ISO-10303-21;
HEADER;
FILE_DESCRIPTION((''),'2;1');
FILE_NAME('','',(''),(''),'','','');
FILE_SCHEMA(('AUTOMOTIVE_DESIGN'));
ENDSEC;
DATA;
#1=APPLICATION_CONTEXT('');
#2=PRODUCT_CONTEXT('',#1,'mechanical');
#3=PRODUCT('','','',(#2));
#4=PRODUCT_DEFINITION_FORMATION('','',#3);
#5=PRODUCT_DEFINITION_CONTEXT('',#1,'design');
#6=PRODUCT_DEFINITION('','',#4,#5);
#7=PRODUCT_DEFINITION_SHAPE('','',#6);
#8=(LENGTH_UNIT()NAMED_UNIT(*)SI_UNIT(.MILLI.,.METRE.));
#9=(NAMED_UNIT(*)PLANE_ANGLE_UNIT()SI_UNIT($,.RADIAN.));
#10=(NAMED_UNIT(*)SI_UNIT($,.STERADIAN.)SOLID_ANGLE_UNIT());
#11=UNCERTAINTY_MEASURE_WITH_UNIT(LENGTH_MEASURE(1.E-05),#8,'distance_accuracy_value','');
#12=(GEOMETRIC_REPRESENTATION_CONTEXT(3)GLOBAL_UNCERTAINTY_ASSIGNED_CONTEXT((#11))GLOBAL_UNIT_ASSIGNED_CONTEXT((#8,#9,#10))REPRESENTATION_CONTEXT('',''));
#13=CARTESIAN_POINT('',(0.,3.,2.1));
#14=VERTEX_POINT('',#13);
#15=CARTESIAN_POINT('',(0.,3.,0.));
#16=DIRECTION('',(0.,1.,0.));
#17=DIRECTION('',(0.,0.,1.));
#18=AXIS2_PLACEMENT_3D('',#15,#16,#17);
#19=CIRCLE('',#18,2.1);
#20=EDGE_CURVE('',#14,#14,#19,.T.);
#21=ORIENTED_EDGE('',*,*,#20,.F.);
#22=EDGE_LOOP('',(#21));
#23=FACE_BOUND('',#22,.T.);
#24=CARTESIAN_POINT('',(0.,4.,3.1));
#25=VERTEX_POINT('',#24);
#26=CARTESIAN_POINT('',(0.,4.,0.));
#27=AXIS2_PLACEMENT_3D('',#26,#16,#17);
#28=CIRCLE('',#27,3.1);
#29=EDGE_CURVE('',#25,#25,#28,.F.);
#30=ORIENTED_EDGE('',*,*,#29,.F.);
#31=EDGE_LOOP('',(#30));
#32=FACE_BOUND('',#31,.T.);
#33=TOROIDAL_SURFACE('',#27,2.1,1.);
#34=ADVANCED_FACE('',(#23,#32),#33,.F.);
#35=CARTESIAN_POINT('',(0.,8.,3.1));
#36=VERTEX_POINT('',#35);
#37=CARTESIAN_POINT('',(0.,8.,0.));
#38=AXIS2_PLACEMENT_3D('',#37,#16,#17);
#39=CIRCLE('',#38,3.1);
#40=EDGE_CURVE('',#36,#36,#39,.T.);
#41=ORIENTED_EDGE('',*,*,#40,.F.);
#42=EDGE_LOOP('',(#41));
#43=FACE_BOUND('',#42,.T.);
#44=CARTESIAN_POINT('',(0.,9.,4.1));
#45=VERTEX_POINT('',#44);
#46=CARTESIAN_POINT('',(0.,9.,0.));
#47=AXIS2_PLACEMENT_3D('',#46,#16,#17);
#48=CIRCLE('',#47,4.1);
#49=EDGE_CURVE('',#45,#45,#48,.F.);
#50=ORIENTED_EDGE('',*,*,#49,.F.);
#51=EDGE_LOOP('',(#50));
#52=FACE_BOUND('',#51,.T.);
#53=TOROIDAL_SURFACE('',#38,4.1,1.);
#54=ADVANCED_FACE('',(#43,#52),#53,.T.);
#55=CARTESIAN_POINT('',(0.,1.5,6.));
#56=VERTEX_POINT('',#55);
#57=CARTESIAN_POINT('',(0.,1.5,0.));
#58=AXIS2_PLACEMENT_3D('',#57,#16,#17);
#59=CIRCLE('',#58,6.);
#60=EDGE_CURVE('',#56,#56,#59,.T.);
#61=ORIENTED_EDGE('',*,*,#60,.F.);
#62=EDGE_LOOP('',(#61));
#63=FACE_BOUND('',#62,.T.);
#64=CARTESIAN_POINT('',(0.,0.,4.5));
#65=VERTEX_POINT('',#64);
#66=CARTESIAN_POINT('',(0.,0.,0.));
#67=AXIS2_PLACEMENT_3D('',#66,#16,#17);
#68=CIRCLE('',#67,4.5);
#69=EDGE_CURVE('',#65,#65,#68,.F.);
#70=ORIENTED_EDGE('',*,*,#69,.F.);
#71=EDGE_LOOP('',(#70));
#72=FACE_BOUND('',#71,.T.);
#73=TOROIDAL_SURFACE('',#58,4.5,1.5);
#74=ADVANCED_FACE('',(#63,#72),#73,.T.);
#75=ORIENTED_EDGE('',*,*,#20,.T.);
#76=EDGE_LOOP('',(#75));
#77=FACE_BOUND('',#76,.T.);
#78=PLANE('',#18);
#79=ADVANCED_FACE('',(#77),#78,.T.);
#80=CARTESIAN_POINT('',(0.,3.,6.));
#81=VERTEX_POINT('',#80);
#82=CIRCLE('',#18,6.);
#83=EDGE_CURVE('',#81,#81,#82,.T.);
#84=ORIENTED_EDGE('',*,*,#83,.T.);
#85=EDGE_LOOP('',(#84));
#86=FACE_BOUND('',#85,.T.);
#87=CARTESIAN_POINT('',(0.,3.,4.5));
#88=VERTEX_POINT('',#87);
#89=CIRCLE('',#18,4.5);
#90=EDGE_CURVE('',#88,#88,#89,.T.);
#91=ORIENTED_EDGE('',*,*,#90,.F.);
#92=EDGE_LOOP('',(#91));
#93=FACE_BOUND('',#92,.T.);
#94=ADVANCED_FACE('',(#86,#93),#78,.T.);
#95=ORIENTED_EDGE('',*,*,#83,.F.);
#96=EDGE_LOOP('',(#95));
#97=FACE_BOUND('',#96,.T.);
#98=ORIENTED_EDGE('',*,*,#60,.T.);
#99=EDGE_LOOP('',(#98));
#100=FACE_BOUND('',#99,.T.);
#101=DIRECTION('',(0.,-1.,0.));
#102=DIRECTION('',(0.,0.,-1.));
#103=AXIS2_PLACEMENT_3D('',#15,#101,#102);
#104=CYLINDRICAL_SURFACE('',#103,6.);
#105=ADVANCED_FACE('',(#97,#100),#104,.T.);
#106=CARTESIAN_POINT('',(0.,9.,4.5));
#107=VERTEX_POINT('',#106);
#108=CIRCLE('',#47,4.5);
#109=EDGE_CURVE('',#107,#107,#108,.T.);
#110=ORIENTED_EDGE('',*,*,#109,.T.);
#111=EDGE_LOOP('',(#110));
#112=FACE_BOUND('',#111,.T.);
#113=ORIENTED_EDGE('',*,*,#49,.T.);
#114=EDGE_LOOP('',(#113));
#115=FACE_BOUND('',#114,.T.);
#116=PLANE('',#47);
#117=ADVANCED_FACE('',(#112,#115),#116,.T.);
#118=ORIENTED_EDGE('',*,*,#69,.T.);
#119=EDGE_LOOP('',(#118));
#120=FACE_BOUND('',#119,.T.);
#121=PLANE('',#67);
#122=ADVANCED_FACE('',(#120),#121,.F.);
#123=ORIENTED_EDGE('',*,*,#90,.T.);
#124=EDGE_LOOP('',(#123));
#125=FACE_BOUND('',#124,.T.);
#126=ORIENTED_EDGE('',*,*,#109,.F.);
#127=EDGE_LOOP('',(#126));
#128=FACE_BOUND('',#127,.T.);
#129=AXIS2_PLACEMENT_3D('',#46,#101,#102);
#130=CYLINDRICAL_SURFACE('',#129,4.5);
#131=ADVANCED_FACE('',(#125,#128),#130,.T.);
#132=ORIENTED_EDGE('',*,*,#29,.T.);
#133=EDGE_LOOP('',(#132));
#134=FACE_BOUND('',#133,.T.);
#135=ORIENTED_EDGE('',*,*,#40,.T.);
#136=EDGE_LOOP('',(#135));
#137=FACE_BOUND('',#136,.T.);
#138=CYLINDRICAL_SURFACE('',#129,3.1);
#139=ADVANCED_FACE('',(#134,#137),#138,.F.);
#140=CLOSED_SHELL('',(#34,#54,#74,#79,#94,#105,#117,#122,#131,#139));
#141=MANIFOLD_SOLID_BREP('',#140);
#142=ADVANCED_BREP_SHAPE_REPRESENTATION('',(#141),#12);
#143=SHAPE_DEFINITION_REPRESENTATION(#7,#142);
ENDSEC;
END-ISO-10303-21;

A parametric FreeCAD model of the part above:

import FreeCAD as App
import Part
import Sketcher

V = App.Vector


def edges_at(feature, points):
    """Names of the edges that pass closest to the given points."""
    edges = feature.Shape.Edges
    near = lambda p: min(range(len(edges)), key=lambda i: edges[i].distToShape(Part.Vertex(*p))[0])
    return sorted({f"Edge{near(p) + 1}" for p in points})

doc = App.newDocument("Part")
params = doc.addObject("Spreadsheet::Sheet", "Params")
for row, (alias, value) in enumerate([
    ("sketch1_diameter", "12 mm"),
    ("pad1_length", "3 mm"),
    ("sketch2_diameter", "9 mm"),
    ("sketch2_diameter2", "6.2 mm"),
    ("pad2_length", "6 mm"),
    ("fillet_radius", "1 mm"),
    ("fillet2_radius", "1.5 mm"),
], start=1):
    params.set(f"A{row}", alias)
    params.set(f"B{row}", "=" + value)
    params.setAlias(f"B{row}", alias)

body = doc.addObject("PartDesign::Body", "Body")

# Sketch on XZ plane
sketch1 = doc.addObject("Sketcher::SketchObject", "Sketch")
body.addObject(sketch1)
sketch1.AttachmentSupport = (doc.XZ_Plane, [""])
sketch1.MapMode = "FlatFace"
sketch1.addGeometry(Part.Circle(V(0, 0, 0), V(0, 0, 1), 6), False)
sketch1.addConstraint([
    Sketcher.Constraint("Coincident", 0, 3, -1, 1),
    Sketcher.Constraint("Diameter", 0, 12.0),
])
sketch1.setExpression("Constraints[1]", "Params.sketch1_diameter")
pad1 = doc.addObject("PartDesign::Pad", "Pad")
body.addObject(pad1)
pad1.Profile = sketch1
pad1.setExpression("Length", "Params.pad1_length")
pad1.Reversed = True

# Sketch on XZ plane
sketch2 = doc.addObject("Sketcher::SketchObject", "Sketch001")
body.addObject(sketch2)
sketch2.AttachmentSupport = (doc.XZ_Plane, [""])
sketch2.MapMode = "FlatFace"
sketch2.AttachmentOffset = App.Placement(V(0, 0, -3), App.Rotation())
sketch2.addGeometry([
    Part.Circle(V(0, 0, 0), V(0, 0, 1), 4.5),
    Part.Circle(V(0, 0, 0), V(0, 0, 1), 3.1),
], False)
sketch2.addConstraint([
    Sketcher.Constraint("Coincident", 0, 3, -1, 1),
    Sketcher.Constraint("Coincident", 1, 3, -1, 1),
    Sketcher.Constraint("Diameter", 0, 9.0),
    Sketcher.Constraint("Diameter", 1, 6.2),
])
sketch2.setExpression("Constraints[2]", "Params.sketch2_diameter")
sketch2.setExpression("Constraints[3]", "Params.sketch2_diameter2")
pad2 = doc.addObject("PartDesign::Pad", "Pad001")
body.addObject(pad2)
pad2.Profile = sketch2
pad2.setExpression("Length", "Params.pad2_length")
pad2.Reversed = True
doc.recompute()

fillet = doc.addObject("PartDesign::Fillet", "Fillet")
body.addObject(fillet)
fillet.Base = (pad2, edges_at(pad2, [(-3.1, 3, 0), (-3.1, 9, 0)]))
fillet.setExpression("Radius", "Params.fillet_radius")
doc.recompute()

fillet2 = doc.addObject("PartDesign::Fillet", "Fillet001")
body.addObject(fillet2)
fillet2.Base = (fillet, edges_at(fillet, [(-6, 0, 0)]))
fillet2.setExpression("Radius", "Params.fillet2_radius")

doc.recompute()
